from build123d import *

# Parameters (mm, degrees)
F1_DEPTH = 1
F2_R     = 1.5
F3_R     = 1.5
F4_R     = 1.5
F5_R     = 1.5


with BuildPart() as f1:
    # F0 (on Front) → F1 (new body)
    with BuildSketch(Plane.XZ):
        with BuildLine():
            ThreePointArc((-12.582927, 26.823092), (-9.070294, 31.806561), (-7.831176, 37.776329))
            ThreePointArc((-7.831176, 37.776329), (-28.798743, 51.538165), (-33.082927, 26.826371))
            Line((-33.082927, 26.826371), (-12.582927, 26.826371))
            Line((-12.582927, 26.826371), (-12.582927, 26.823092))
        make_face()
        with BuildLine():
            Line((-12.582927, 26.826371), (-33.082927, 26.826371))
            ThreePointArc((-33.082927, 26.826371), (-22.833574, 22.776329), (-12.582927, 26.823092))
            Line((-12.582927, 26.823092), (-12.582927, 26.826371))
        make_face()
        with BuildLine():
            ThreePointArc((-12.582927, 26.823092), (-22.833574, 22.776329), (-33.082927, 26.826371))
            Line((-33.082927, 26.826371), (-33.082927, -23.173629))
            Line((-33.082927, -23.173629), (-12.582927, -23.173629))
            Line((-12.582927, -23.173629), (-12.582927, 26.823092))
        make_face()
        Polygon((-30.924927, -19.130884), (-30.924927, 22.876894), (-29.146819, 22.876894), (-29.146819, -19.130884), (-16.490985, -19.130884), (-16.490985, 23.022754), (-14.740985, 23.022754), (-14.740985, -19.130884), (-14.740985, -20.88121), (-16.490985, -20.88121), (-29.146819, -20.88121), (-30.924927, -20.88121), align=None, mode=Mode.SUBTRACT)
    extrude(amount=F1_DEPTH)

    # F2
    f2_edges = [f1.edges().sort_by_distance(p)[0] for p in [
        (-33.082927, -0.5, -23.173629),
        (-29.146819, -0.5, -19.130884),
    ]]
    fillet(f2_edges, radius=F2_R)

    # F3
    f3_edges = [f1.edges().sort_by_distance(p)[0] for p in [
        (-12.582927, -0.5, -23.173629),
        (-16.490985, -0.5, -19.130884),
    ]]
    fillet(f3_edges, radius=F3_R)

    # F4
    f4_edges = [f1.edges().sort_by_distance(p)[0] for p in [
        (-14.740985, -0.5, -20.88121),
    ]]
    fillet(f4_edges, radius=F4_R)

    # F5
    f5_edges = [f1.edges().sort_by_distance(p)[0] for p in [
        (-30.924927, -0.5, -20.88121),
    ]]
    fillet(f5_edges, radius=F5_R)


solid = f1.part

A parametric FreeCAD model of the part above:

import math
import FreeCAD as App
import Part
import Sketcher


def edges_at(feature, points):
    """Names of the edges that pass closest to the given points."""
    edges = feature.Shape.Edges
    near = lambda p: min(range(len(edges)), key=lambda i: edges[i].distToShape(Part.Vertex(*p))[0])
    return sorted({f"Edge{near(p) + 1}" for p in points})


def add_polygon(sketch, points):
    """Adds a closed chain of lines whose ends are joined by coincident constraints."""
    first, n = sketch.GeometryCount, len(points)
    for a, b in zip(points, points[1:] + points[:1]):
        sketch.addGeometry(Part.LineSegment(App.Vector(*a, 0), App.Vector(*b, 0)), False)
    for i in range(n):
        sketch.addConstraint(Sketcher.Constraint("Coincident", first + i, 2, first + (i + 1) % n, 1))

doc = App.newDocument("Part")
body = doc.addObject("PartDesign::Body", "Body")

# Sketch on XZ plane
sketch1 = doc.addObject("Sketcher::SketchObject", "Sketch")
body.addObject(sketch1)
sketch1.AttachmentSupport = (doc.XZ_Plane, [""])
sketch1.MapMode = "FlatFace"
sketch1.addGeometry(Part.ArcOfCircle(Part.Circle(App.Vector(-22.8, 37.8, 0), App.Vector(0, 0, 1), 15), math.radians(-47), math.radians(0)), False)  # 0
sketch1.addGeometry(Part.ArcOfCircle(Part.Circle(App.Vector(-22.8, 37.8, 0), App.Vector(0, 0, 1), 15), math.radians(0), math.radians(227)), False)  # 1
sketch1.addGeometry(Part.LineSegment(App.Vector(-33.1, 26.8, 0), App.Vector(-33.1, -23.2, 0)), False)  # 2
sketch1.addGeometry(Part.LineSegment(App.Vector(-33.1, -23.2, 0), App.Vector(-12.6, -23.2, 0)), False)  # 3
sketch1.addGeometry(Part.LineSegment(App.Vector(-12.6, -23.2, 0), App.Vector(-12.6, 26.8, 0)), False)  # 4
add_polygon(sketch1, [(-30.9, -20.9), (-30.9, 22.9), (-29.1, 22.9), (-29.1, -19.1), (-16.5, -19.1), (-16.5, 23), (-14.7, 23), (-14.7, -20.9)])  # lines 5-12
sketch1.addConstraint([
    Sketcher.Constraint("Tangent", 0, 2, 1, 1),
    Sketcher.Constraint("Coincident", 1, 2, 2, 1),
    Sketcher.Constraint("Coincident", 2, 2, 3, 1),
    Sketcher.Constraint("Coincident", 3, 2, 4, 1),
    Sketcher.Constraint("Coincident", 4, 2, 0, 1),
    Sketcher.Constraint("Vertical", 2),
    Sketcher.Constraint("Horizontal", 3),
    Sketcher.Constraint("Vertical", 4),
    Sketcher.Constraint("Vertical", 5),
    Sketcher.Constraint("Horizontal", 6),
    Sketcher.Constraint("Vertical", 7),
    Sketcher.Constraint("Horizontal", 8),
    Sketcher.Constraint("Vertical", 9),
    Sketcher.Constraint("Horizontal", 10),
    Sketcher.Constraint("Vertical", 11),
    Sketcher.Constraint("Horizontal", 12),
    Sketcher.Constraint("Equal", 0, 1),
    Sketcher.Constraint("Horizontal", 1, 3, 0, 2),
    Sketcher.Constraint("Radius", 0, 15.0),
    Sketcher.Constraint("DistanceY", 2, 2, 2, 1, 50.0),
    Sketcher.Constraint("DistanceX", 3, 1, 3, 2, 20.5),
    Sketcher.Constraint("DistanceX", 10, 1, 10, 2, 1.75),
    Sketcher.Constraint("DistanceX", 1, 2, 5, 2, 2.158),
    Sketcher.Constraint("DistanceY", 4, 1, 4, 2, 49.996721),
    Sketcher.Constraint("DistanceY", 7, 2, 7, 1, 42.007778),
    Sketcher.Constraint("DistanceX", 6, 1, 6, 2, 1.778108),
    Sketcher.Constraint("DistanceX", 8, 1, 8, 2, 12.655834),
    Sketcher.Constraint("DistanceY", 5, 1, 5, 2, 43.758104),
    Sketcher.Constraint("DistanceY", 9, 1, 9, 2, 42.153638),
    Sketcher.Constraint("DistanceY", -1, 1, 0, 3, 37.776329),
    Sketcher.Constraint("DistanceX", 6, 2, -1, 1, 29.146819),
    Sketcher.Constraint("DistanceY", 11, 2, -1, 1, 20.88121),
])
pad1 = doc.addObject("PartDesign::Pad", "Pad")
body.addObject(pad1)
pad1.Profile = sketch1
pad1.Length = 1
doc.recompute()

fillet = doc.addObject("PartDesign::Fillet", "Fillet")
body.addObject(fillet)
fillet.Base = (pad1, edges_at(pad1, [(-33.083, -0.5, -23.174), (-29.147, -0.5, -19.131)]))
fillet.Radius = 1.5
doc.recompute()

fillet2 = doc.addObject("PartDesign::Fillet", "Fillet001")
body.addObject(fillet2)
fillet2.Base = (fillet, edges_at(fillet, [(-12.583, -0.5, -23.174), (-16.491, -0.5, -19.131)]))
fillet2.Radius = 1.5
doc.recompute()

fillet3 = doc.addObject("PartDesign::Fillet", "Fillet002")
body.addObject(fillet3)
fillet3.Base = (fillet2, edges_at(fillet2, [(-14.741, -0.5, -20.881)]))
fillet3.Radius = 1.5
doc.recompute()

fillet4 = doc.addObject("PartDesign::Fillet", "Fillet003")
body.addObject(fillet4)
fillet4.Base = (fillet3, edges_at(fillet3, [(-30.925, -0.5, -20.881)]))
fillet4.Radius = 1.5

doc.recompute()
